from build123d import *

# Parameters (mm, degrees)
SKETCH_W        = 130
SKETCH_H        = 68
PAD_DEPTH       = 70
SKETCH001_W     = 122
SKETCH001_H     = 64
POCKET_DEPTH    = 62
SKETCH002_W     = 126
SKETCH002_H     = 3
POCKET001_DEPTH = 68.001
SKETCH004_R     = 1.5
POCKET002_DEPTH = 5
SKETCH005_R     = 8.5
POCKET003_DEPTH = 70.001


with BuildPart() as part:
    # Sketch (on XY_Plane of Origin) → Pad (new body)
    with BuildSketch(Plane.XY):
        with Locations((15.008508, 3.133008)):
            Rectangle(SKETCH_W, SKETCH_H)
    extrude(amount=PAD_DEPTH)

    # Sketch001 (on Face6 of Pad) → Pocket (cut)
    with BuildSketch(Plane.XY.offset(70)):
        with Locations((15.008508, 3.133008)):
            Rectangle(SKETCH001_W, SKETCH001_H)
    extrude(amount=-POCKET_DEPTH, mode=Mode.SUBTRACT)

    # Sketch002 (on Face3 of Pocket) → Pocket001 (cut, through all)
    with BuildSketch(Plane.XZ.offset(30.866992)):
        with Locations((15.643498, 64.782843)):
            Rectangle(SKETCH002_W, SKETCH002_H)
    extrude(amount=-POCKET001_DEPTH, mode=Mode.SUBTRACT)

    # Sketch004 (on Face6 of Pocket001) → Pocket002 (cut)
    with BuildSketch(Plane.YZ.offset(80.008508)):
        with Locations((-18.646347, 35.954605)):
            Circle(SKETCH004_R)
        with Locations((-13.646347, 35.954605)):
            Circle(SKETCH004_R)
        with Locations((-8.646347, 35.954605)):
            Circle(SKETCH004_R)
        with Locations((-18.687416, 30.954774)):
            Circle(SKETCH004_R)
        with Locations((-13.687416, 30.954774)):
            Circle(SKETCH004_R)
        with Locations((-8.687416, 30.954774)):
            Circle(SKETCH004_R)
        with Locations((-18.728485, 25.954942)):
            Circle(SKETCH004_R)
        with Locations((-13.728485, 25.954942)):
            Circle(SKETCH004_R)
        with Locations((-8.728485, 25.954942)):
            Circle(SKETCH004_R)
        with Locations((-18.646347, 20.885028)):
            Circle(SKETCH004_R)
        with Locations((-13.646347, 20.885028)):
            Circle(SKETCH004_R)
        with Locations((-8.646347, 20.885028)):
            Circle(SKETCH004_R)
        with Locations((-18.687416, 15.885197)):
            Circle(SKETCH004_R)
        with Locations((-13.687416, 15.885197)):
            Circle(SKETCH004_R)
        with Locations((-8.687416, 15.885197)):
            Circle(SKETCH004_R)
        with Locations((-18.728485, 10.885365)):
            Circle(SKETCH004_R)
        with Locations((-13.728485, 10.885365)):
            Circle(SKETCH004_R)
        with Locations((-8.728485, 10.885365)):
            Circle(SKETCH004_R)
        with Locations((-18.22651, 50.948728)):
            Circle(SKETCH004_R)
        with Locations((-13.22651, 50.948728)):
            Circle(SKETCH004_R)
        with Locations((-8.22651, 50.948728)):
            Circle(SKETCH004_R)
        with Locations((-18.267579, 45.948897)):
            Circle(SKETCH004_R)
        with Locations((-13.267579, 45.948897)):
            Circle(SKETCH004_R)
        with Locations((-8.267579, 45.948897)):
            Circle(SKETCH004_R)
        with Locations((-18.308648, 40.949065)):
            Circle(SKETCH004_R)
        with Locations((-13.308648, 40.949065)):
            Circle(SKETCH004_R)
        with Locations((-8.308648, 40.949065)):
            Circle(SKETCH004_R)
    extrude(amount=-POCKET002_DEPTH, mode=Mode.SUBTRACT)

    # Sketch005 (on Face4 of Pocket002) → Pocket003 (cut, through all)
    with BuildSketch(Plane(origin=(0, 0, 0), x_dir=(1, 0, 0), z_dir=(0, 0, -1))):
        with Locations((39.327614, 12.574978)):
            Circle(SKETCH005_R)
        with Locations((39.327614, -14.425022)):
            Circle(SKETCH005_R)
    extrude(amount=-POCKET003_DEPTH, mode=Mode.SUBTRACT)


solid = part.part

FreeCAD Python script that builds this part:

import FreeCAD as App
import Part
import Sketcher
from FreeCAD import Vector

doc = App.newDocument("Part")
body = doc.addObject("PartDesign::Body", "Body")

sketch1 = doc.addObject("Sketcher::SketchObject", "Sketch")
body.addObject(sketch1)
sketch1.AttachmentSupport = (doc.XY_Plane, [""])
sketch1.MapMode = "FlatFace"
sketch1.addGeometry(Part.LineSegment(Vector(-50, 37, 0), Vector(-50, -31, 0)), False)
sketch1.addGeometry(Part.LineSegment(Vector(-50, -31, 0), Vector(80, -31, 0)), False)
sketch1.addGeometry(Part.LineSegment(Vector(80, -31, 0), Vector(80, 37, 0)), False)
sketch1.addGeometry(Part.LineSegment(Vector(80, 37, 0), Vector(-50, 37, 0)), False)
sketch1.addConstraint(Sketcher.Constraint("Coincident", 0, 2, 1, 1))
sketch1.addConstraint(Sketcher.Constraint("Coincident", 1, 2, 2, 1))
sketch1.addConstraint(Sketcher.Constraint("Coincident", 2, 2, 3, 1))
sketch1.addConstraint(Sketcher.Constraint("Coincident", 3, 2, 0, 1))
sketch1.addConstraint(Sketcher.Constraint("Vertical", 0))
sketch1.addConstraint(Sketcher.Constraint("Horizontal", 1))
sketch1.addConstraint(Sketcher.Constraint("Vertical", 2))
sketch1.addConstraint(Sketcher.Constraint("Horizontal", 3))
sketch1.addConstraint(Sketcher.Constraint("DistanceX", 1, 1, 1, 2, 130.0))
sketch1.addConstraint(Sketcher.Constraint("DistanceY", 0, 2, 0, 1, 68.0))
sketch1.addConstraint(Sketcher.Constraint("DistanceY", 0, 2, -1, 1, 30.866992))
sketch1.addConstraint(Sketcher.Constraint("DistanceX", -1, 1, 1, 2, 80.008508))
pad1 = doc.addObject("PartDesign::Pad", "Pad")
body.addObject(pad1)
pad1.Profile = sketch1
pad1.Length = 70

sketch2 = doc.addObject("Sketcher::SketchObject", "Sketch001")
body.addObject(sketch2)
sketch2.AttachmentSupport = (doc.XY_Plane, [""])
sketch2.MapMode = "FlatFace"
sketch2.AttachmentOffset = App.Placement(Vector(0, 0, 70), App.Rotation())
sketch2.addGeometry(Part.LineSegment(Vector(-46, 35, 0), Vector(-46, -29, 0)), False)
sketch2.addGeometry(Part.LineSegment(Vector(-46, -29, 0), Vector(76, -29, 0)), False)
sketch2.addGeometry(Part.LineSegment(Vector(76, -29, 0), Vector(76, 35, 0)), False)
sketch2.addGeometry(Part.LineSegment(Vector(76, 35, 0), Vector(-46, 35, 0)), False)
sketch2.addConstraint(Sketcher.Constraint("Coincident", 0, 2, 1, 1))
sketch2.addConstraint(Sketcher.Constraint("Coincident", 1, 2, 2, 1))
sketch2.addConstraint(Sketcher.Constraint("Coincident", 2, 2, 3, 1))
sketch2.addConstraint(Sketcher.Constraint("Coincident", 3, 2, 0, 1))
sketch2.addConstraint(Sketcher.Constraint("Vertical", 0))
sketch2.addConstraint(Sketcher.Constraint("Horizontal", 1))
sketch2.addConstraint(Sketcher.Constraint("Vertical", 2))
sketch2.addConstraint(Sketcher.Constraint("Horizontal", 3))
sketch2.addConstraint(Sketcher.Constraint("DistanceX", 1, 1, 1, 2, 122.0))
sketch2.addConstraint(Sketcher.Constraint("DistanceY", 0, 2, 0, 1, 64.0))
sketch2.addConstraint(Sketcher.Constraint("DistanceY", 0, 2, -1, 1, 28.866992))
sketch2.addConstraint(Sketcher.Constraint("DistanceX", -1, 1, 1, 2, 76.008508))
pocket1 = doc.addObject("PartDesign::Pocket", "Pocket")
body.addObject(pocket1)
pocket1.Profile = sketch2
pocket1.Length = 62

sketch3 = doc.addObject("Sketcher::SketchObject", "Sketch002")
body.addObject(sketch3)
sketch3.AttachmentSupport = (doc.XZ_Plane, [""])
sketch3.MapMode = "FlatFace"
sketch3.AttachmentOffset = App.Placement(Vector(0, 0, 30.866992), App.Rotation())
sketch3.addGeometry(Part.LineSegment(Vector(-47.4, 66.3, 0), Vector(-47.4, 63.3, 0)), False)
sketch3.addGeometry(Part.LineSegment(Vector(-47.4, 63.3, 0), Vector(78.6, 63.3, 0)), False)
sketch3.addGeometry(Part.LineSegment(Vector(78.6, 63.3, 0), Vector(78.6, 66.3, 0)), False)
sketch3.addGeometry(Part.LineSegment(Vector(78.6, 66.3, 0), Vector(-47.4, 66.3, 0)), False)
sketch3.addConstraint(Sketcher.Constraint("Coincident", 0, 2, 1, 1))
sketch3.addConstraint(Sketcher.Constraint("Coincident", 1, 2, 2, 1))
sketch3.addConstraint(Sketcher.Constraint("Coincident", 2, 2, 3, 1))
sketch3.addConstraint(Sketcher.Constraint("Coincident", 3, 2, 0, 1))
sketch3.addConstraint(Sketcher.Constraint("Vertical", 0))
sketch3.addConstraint(Sketcher.Constraint("Horizontal", 1))
sketch3.addConstraint(Sketcher.Constraint("Vertical", 2))
sketch3.addConstraint(Sketcher.Constraint("Horizontal", 3))
sketch3.addConstraint(Sketcher.Constraint("DistanceX", 1, 1, 1, 2, 126.0))
sketch3.addConstraint(Sketcher.Constraint("DistanceY", 0, 2, 0, 1, 3.0))
sketch3.addConstraint(Sketcher.Constraint("DistanceX", 0, 2, -1, 1, 47.356502))
sketch3.addConstraint(Sketcher.Constraint("DistanceY", -1, 1, 0, 2, 63.282843))
pocket2 = doc.addObject("PartDesign::Pocket", "Pocket001")
body.addObject(pocket2)
pocket2.Profile = sketch3
pocket2.Type = "ThroughAll"

sketch4 = doc.addObject("Sketcher::SketchObject", "Sketch003")
body.addObject(sketch4)
sketch4.AttachmentSupport = (doc.YZ_Plane, [""])
sketch4.MapMode = "FlatFace"
sketch4.AttachmentOffset = App.Placement(Vector(0, 0, 80.008508), App.Rotation())
sketch4.addGeometry(Part.Circle(Vector(-18.6, 36, 0), Vector(0, 0, 1), 1.5), False)
sketch4.addGeometry(Part.Circle(Vector(-13.6, 36, 0), Vector(0, 0, 1), 1.5), False)
sketch4.addGeometry(Part.Circle(Vector(-8.6, 36, 0), Vector(0, 0, 1), 1.5), False)
sketch4.addGeometry(Part.Circle(Vector(-18.7, 31, 0), Vector(0, 0, 1), 1.5), False)
sketch4.addGeometry(Part.Circle(Vector(-13.7, 31, 0), Vector(0, 0, 1), 1.5), False)
sketch4.addGeometry(Part.Circle(Vector(-8.7, 31, 0), Vector(0, 0, 1), 1.5), False)
sketch4.addGeometry(Part.Circle(Vector(-18.7, 26, 0), Vector(0, 0, 1), 1.5), False)
sketch4.addGeometry(Part.Circle(Vector(-13.7, 26, 0), Vector(0, 0, 1), 1.5), False)
sketch4.addGeometry(Part.Circle(Vector(-8.7, 26, 0), Vector(0, 0, 1), 1.5), False)
sketch4.addGeometry(Part.Circle(Vector(-18.6, 20.9, 0), Vector(0, 0, 1), 1.5), False)
sketch4.addGeometry(Part.Circle(Vector(-13.6, 20.9, 0), Vector(0, 0, 1), 1.5), False)
sketch4.addGeometry(Part.Circle(Vector(-8.6, 20.9, 0), Vector(0, 0, 1), 1.5), False)
sketch4.addGeometry(Part.Circle(Vector(-18.7, 15.9, 0), Vector(0, 0, 1), 1.5), False)
sketch4.addGeometry(Part.Circle(Vector(-13.7, 15.9, 0), Vector(0, 0, 1), 1.5), False)
sketch4.addGeometry(Part.Circle(Vector(-8.7, 15.9, 0), Vector(0, 0, 1), 1.5), False)
sketch4.addGeometry(Part.Circle(Vector(-18.7, 10.9, 0), Vector(0, 0, 1), 1.5), False)
sketch4.addGeometry(Part.Circle(Vector(-13.7, 10.9, 0), Vector(0, 0, 1), 1.5), False)
sketch4.addGeometry(Part.Circle(Vector(-8.7, 10.9, 0), Vector(0, 0, 1), 1.5), False)
sketch4.addGeometry(Part.Circle(Vector(-18.2, 50.9, 0), Vector(0, 0, 1), 1.5), False)
sketch4.addGeometry(Part.Circle(Vector(-13.2, 50.9, 0), Vector(0, 0, 1), 1.5), False)
sketch4.addGeometry(Part.Circle(Vector(-8.2, 50.9, 0), Vector(0, 0, 1), 1.5), False)
sketch4.addGeometry(Part.Circle(Vector(-18.3, 45.9, 0), Vector(0, 0, 1), 1.5), False)
sketch4.addGeometry(Part.Circle(Vector(-13.3, 45.9, 0), Vector(0, 0, 1), 1.5), False)
sketch4.addGeometry(Part.Circle(Vector(-8.3, 45.9, 0), Vector(0, 0, 1), 1.5), False)
sketch4.addGeometry(Part.Circle(Vector(-18.3, 40.9, 0), Vector(0, 0, 1), 1.5), False)
sketch4.addGeometry(Part.Circle(Vector(-13.3, 40.9, 0), Vector(0, 0, 1), 1.5), False)
sketch4.addGeometry(Part.Circle(Vector(-8.3, 40.9, 0), Vector(0, 0, 1), 1.5), False)
sketch4.addConstraint(Sketcher.Constraint("Equal", 0, 1))
sketch4.addConstraint(Sketcher.Constraint("Equal", 1, 2))
sketch4.addConstraint(Sketcher.Constraint("Equal", 2, 3))
sketch4.addConstraint(Sketcher.Constraint("Equal", 3, 4))
sketch4.addConstraint(Sketcher.Constraint("Equal", 4, 5))
sketch4.addConstraint(Sketcher.Constraint("Equal", 5, 6))
sketch4.addConstraint(Sketcher.Constraint("Equal", 6, 7))
sketch4.addConstraint(Sketcher.Constraint("Equal", 7, 8))
sketch4.addConstraint(Sketcher.Constraint("Equal", 8, 9))
sketch4.addConstraint(Sketcher.Constraint("Equal", 9, 10))
sketch4.addConstraint(Sketcher.Constraint("Equal", 10, 11))
sketch4.addConstraint(Sketcher.Constraint("Equal", 11, 12))
sketch4.addConstraint(Sketcher.Constraint("Equal", 12, 13))
sketch4.addConstraint(Sketcher.Constraint("Equal", 13, 14))
sketch4.addConstraint(Sketcher.Constraint("Equal", 14, 15))
sketch4.addConstraint(Sketcher.Constraint("Equal", 15, 16))
sketch4.addConstraint(Sketcher.Constraint("Equal", 16, 17))
sketch4.addConstraint(Sketcher.Constraint("Equal", 17, 18))
sketch4.addConstraint(Sketcher.Constraint("Equal", 18, 19))
sketch4.addConstraint(Sketcher.Constraint("Equal", 19, 20))
sketch4.addConstraint(Sketcher.Constraint("Equal", 20, 21))
sketch4.addConstraint(Sketcher.Constraint("Equal", 21, 22))
sketch4.addConstraint(Sketcher.Constraint("Equal", 22, 23))
sketch4.addConstraint(Sketcher.Constraint("Equal", 23, 24))
sketch4.addConstraint(Sketcher.Constraint("Equal", 24, 25))
sketch4.addConstraint(Sketcher.Constraint("Equal", 25, 26))
sketch4.addConstraint(Sketcher.Constraint("Horizontal", 0, 3, 1, 3))
sketch4.addConstraint(Sketcher.Constraint("Horizontal", 1, 3, 2, 3))
sketch4.addConstraint(Sketcher.Constraint("Horizontal", 3, 3, 4, 3))
sketch4.addConstraint(Sketcher.Constraint("Horizontal", 4, 3, 5, 3))
sketch4.addConstraint(Sketcher.Constraint("Horizontal", 6, 3, 7, 3))
sketch4.addConstraint(Sketcher.Constraint("Horizontal", 7, 3, 8, 3))
sketch4.addConstraint(Sketcher.Constraint("Horizontal", 9, 3, 10, 3))
sketch4.addConstraint(Sketcher.Constraint("Horizontal", 10, 3, 11, 3))
sketch4.addConstraint(Sketcher.Constraint("Horizontal", 12, 3, 13, 3))
sketch4.addConstraint(Sketcher.Constraint("Horizontal", 13, 3, 14, 3))
sketch4.addConstraint(Sketcher.Constraint("Horizontal", 15, 3, 16, 3))
sketch4.addConstraint(Sketcher.Constraint("Horizontal", 16, 3, 17, 3))
sketch4.addConstraint(Sketcher.Constraint("Horizontal", 18, 3, 19, 3))
sketch4.addConstraint(Sketcher.Constraint("Horizontal", 19, 3, 20, 3))
sketch4.addConstraint(Sketcher.Constraint("Horizontal", 21, 3, 22, 3))
sketch4.addConstraint(Sketcher.Constraint("Horizontal", 22, 3, 23, 3))
sketch4.addConstraint(Sketcher.Constraint("Horizontal", 24, 3, 25, 3))
sketch4.addConstraint(Sketcher.Constraint("Horizontal", 25, 3, 26, 3))
sketch4.addConstraint(Sketcher.Constraint("Vertical", 0, 3, 9, 3))
sketch4.addConstraint(Sketcher.Constraint("Vertical", 1, 3, 10, 3))
sketch4.addConstraint(Sketcher.Constraint("Vertical", 2, 3, 11, 3))
sketch4.addConstraint(Sketcher.Constraint("Vertical", 3, 3, 12, 3))
sketch4.addConstraint(Sketcher.Constraint("Vertical", 4, 3, 13, 3))
sketch4.addConstraint(Sketcher.Constraint("Vertical", 5, 3, 14, 3))
sketch4.addConstraint(Sketcher.Constraint("Vertical", 6, 3, 15, 3))
sketch4.addConstraint(Sketcher.Constraint("Vertical", 7, 3, 16, 3))
sketch4.addConstraint(Sketcher.Constraint("Vertical", 8, 3, 17, 3))
sketch4.addConstraint(Sketcher.Constraint("Diameter", 0, 3.0))
sketch4.addConstraint(Sketcher.Constraint("DistanceX", 0, 3, 1, 3, 5.0))
sketch4.addConstraint(Sketcher.Constraint("DistanceX", 1, 3, 2, 3, 5.0))
sketch4.addConstraint(Sketcher.Constraint("DistanceX", 3, 3, 4, 3, 5.0))
sketch4.addConstraint(Sketcher.Constraint("DistanceX", 4, 3, 5, 3, 5.0))
sketch4.addConstraint(Sketcher.Constraint("DistanceX", 6, 3, 7, 3, 5.0))
sketch4.addConstraint(Sketcher.Constraint("DistanceX", 7, 3, 8, 3, 5.0))
sketch4.addConstraint(Sketcher.Constraint("DistanceX", 18, 3, 19, 3, 5.0))
sketch4.addConstraint(Sketcher.Constraint("DistanceX", 19, 3, 20, 3, 5.0))
sketch4.addConstraint(Sketcher.Constraint("DistanceX", 21, 3, 22, 3, 5.0))
sketch4.addConstraint(Sketcher.Constraint("DistanceX", 22, 3, 23, 3, 5.0))
sketch4.addConstraint(Sketcher.Constraint("DistanceX", 24, 3, 25, 3, 5.0))
sketch4.addConstraint(Sketcher.Constraint("DistanceX", 25, 3, 26, 3, 5.0))
sketch4.addConstraint(Sketcher.Constraint("DistanceX", 0, 3, 24, 3, 0.337699))
sketch4.addConstraint(Sketcher.Constraint("DistanceY", -1, 1, 6, 3, 25.954942))
sketch4.addConstraint(Sketcher.Constraint("DistanceX", 18, 3, -1, 1, 18.22651))
sketch4.addConstraint(Sketcher.Constraint("DistanceY", -1, 1, 18, 3, 50.948728))
sketch4.addConstraint(Sketcher.Constraint("DistanceX", 21, 3, -1, 1, 18.267579))
sketch4.addConstraint(Sketcher.Constraint("DistanceX", 24, 3, -1, 1, 18.308648))
sketch4.addConstraint(Sketcher.Constraint("DistanceX", 3, 3, 0, 3, 0.041069))
sketch4.addConstraint(Sketcher.Constraint("DistanceY", 3, 3, 0, 3, 4.999831))
sketch4.addConstraint(Sketcher.Constraint("DistanceX", 6, 3, 3, 3, 0.041069))
sketch4.addConstraint(Sketcher.Constraint("DistanceY", 12, 3, 9, 3, 4.999831))
sketch4.addConstraint(Sketcher.Constraint("DistanceY", 15, 3, 12, 3, 4.999832))
sketch4.addConstraint(Sketcher.Constraint("DistanceY", 21, 3, 18, 3, 4.999831))
sketch4.addConstraint(Sketcher.Constraint("DistanceY", 0, 3, 24, 3, 4.99446))
sketch4.addConstraint(Sketcher.Constraint("DistanceY", -1, 1, 0, 3, 35.954605))
sketch4.addConstraint(Sketcher.Constraint("DistanceY", -1, 1, 9, 3, 20.885028))
pocket3 = doc.addObject("PartDesign::Pocket", "Pocket002")
body.addObject(pocket3)
pocket3.Profile = sketch4
pocket3.Length = 5

sketch5 = doc.addObject("Sketcher::SketchObject", "Sketch004")
body.addObject(sketch5)
sketch5.AttachmentSupport = (doc.XY_Plane, [""])
sketch5.MapMode = "FlatFace"
sketch5.addGeometry(Part.Circle(Vector(39, -13, 0), Vector(0, 0, 1), 8), False)
sketch5.addGeometry(Part.Circle(Vector(39, 14, 0), Vector(0, 0, 1), 8), False)
sketch5.addConstraint(Sketcher.Constraint("Equal", 0, 1))
sketch5.addConstraint(Sketcher.Constraint("Vertical", 0, 3, 1, 3))
sketch5.addConstraint(Sketcher.Constraint("Diameter", 0, 17.0))
sketch5.addConstraint(Sketcher.Constraint("DistanceY", 0, 3, 1, 3, 27.0))
sketch5.addConstraint(Sketcher.Constraint("DistanceX", -1, 1, 0, 3, 39.327614))
sketch5.addConstraint(Sketcher.Constraint("DistanceY", 0, 3, -1, 1, 12.574978))
pocket4 = doc.addObject("PartDesign::Pocket", "Pocket003")
body.addObject(pocket4)
pocket4.Profile = sketch5
pocket4.Type = "ThroughAll"
pocket4.Reversed = True

doc.recompute()
